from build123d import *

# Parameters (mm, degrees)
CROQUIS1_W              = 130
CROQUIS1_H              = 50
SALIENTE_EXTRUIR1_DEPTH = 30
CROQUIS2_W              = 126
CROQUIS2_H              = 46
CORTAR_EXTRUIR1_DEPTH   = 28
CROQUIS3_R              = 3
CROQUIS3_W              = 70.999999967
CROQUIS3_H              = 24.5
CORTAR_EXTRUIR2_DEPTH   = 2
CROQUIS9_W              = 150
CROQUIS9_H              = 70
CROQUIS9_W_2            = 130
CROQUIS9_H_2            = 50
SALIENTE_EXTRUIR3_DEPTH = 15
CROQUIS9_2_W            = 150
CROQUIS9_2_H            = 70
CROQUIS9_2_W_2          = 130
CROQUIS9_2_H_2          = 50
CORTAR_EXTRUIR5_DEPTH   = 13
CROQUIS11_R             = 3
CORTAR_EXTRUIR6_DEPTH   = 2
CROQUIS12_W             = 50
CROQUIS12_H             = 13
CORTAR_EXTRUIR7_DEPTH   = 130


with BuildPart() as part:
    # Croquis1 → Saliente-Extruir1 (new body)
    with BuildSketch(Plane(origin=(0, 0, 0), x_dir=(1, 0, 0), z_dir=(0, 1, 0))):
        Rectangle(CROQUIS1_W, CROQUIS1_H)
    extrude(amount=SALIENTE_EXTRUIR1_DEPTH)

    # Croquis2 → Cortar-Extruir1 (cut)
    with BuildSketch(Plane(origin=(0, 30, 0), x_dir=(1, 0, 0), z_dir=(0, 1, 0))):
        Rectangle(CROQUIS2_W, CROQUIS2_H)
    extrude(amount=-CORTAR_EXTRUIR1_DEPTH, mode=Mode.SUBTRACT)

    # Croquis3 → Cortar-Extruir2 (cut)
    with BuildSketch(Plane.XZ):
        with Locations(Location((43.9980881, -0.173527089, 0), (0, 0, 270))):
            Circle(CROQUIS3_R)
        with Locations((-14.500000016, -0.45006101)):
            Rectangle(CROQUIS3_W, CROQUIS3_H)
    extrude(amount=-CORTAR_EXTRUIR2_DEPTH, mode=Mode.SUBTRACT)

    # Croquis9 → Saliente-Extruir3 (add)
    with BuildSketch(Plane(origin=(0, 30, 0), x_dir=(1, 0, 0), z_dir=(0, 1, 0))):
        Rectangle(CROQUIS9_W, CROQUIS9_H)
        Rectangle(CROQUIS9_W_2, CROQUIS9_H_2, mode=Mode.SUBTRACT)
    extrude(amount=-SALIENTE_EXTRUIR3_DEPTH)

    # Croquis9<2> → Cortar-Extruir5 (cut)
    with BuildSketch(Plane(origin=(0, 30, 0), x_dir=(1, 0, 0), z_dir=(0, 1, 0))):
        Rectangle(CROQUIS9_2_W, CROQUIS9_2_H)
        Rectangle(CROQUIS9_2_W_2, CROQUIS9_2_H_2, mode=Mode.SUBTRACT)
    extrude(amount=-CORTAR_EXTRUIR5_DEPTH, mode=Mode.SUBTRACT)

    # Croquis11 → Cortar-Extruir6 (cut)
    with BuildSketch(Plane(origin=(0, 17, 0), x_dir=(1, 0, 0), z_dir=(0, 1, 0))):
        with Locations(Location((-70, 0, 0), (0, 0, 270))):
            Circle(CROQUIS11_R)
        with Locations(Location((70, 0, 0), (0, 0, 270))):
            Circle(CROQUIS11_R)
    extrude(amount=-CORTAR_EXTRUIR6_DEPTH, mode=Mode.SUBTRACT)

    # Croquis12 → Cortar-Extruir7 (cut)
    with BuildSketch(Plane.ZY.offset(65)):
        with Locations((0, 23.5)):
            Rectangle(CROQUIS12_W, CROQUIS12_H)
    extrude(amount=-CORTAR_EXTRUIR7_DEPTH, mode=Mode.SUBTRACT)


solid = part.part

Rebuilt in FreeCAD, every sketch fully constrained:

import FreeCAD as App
import Part
import Sketcher
from FreeCAD import Vector


def add_polygon(sketch, points):
    """Adds a closed chain of lines whose ends are joined by coincident constraints."""
    first, n = sketch.GeometryCount, len(points)
    for a, b in zip(points, points[1:] + points[:1]):
        sketch.addGeometry(Part.LineSegment(App.Vector(*a, 0), App.Vector(*b, 0)), False)
    for i in range(n):
        sketch.addConstraint(Sketcher.Constraint("Coincident", first + i, 2, first + (i + 1) % n, 1))

doc = App.newDocument("Part")
body = doc.addObject("PartDesign::Body", "Body")

sketch1 = body.newObject("Sketcher::SketchObject", "Sketch")
sketch1.AttachmentSupport = (doc.getObject("XZ_Plane"), [""])
sketch1.MapMode = "FlatFace"
add_polygon(sketch1, [(-65, -25), (-65, 25), (65, 25), (65, -25)])
sketch1.addConstraint([
    Sketcher.Constraint("Vertical", 0),
    Sketcher.Constraint("Horizontal", 1),
    Sketcher.Constraint("Vertical", 2),
    Sketcher.Constraint("Horizontal", 3),
    Sketcher.Constraint("Symmetric", 0, 2, 2, 2, -1, 1),
    Sketcher.Constraint("DistanceX", 1, 1, 1, 2, 130.0),
    Sketcher.Constraint("DistanceY", 0, 1, 0, 2, 50.0),
])
pad1 = body.newObject("PartDesign::Pad", "Pad")
pad1.Profile = sketch1
pad1.Length = 30
pad1.Reversed = True

sketch2 = body.newObject("Sketcher::SketchObject", "Sketch001")
sketch2.AttachmentSupport = (doc.getObject("XZ_Plane"), [""])
sketch2.MapMode = "FlatFace"
sketch2.AttachmentOffset = App.Placement(Vector(0, 0, -30), App.Rotation())
add_polygon(sketch2, [(-63, -23), (-63, 23), (63, 23), (63, -23)])
sketch2.addConstraint([
    Sketcher.Constraint("Vertical", 0),
    Sketcher.Constraint("Horizontal", 1),
    Sketcher.Constraint("Vertical", 2),
    Sketcher.Constraint("Horizontal", 3),
    Sketcher.Constraint("Symmetric", 0, 2, 2, 2, -1, 1),
    Sketcher.Constraint("DistanceX", 1, 1, 1, 2, 126.0),
    Sketcher.Constraint("DistanceY", 0, 1, 0, 2, 46.0),
])
pocket1 = body.newObject("PartDesign::Pocket", "Pocket")
pocket1.Profile = sketch2
pocket1.Length = 28
pocket1.Reversed = True

sketch3 = body.newObject("Sketcher::SketchObject", "Sketch002")
sketch3.AttachmentSupport = (doc.getObject("XZ_Plane"), [""])
sketch3.MapMode = "FlatFace"
sketch3.addGeometry(Part.Circle(Vector(44, -0.2, 0), Vector(0, 0, 1), 3), False)
add_polygon(sketch3, [(-50, 11.8), (-50, -12.7), (21, -12.7), (21, 11.8)])
sketch3.addConstraint([
    Sketcher.Constraint("Vertical", 1),
    Sketcher.Constraint("Horizontal", 2),
    Sketcher.Constraint("Vertical", 3),
    Sketcher.Constraint("Horizontal", 4),
    Sketcher.Constraint("Diameter", 0, 6.0),
    Sketcher.Constraint("DistanceX", 2, 1, 2, 2, 71.0),
    Sketcher.Constraint("DistanceY", 1, 2, 1, 1, 24.5),
    Sketcher.Constraint("DistanceX", 1, 2, -1, 1, 50.0),
    Sketcher.Constraint("DistanceX", -1, 1, 0, 3, 43.998088),
    Sketcher.Constraint("DistanceY", 1, 2, -1, 1, 12.700061),
    Sketcher.Constraint("DistanceY", 0, 3, -1, 1, 0.173527),
])
pocket2 = body.newObject("PartDesign::Pocket", "Pocket001")
pocket2.Profile = sketch3
pocket2.Length = 2

sketch4 = body.newObject("Sketcher::SketchObject", "Sketch003")
sketch4.AttachmentSupport = (doc.getObject("XZ_Plane"), [""])
sketch4.MapMode = "FlatFace"
sketch4.AttachmentOffset = App.Placement(Vector(0, 0, -30), App.Rotation())
add_polygon(sketch4, [(-75, -35), (-75, 35), (75, 35), (75, -35)])
add_polygon(sketch4, [(65, 25), (-65, 25), (-65, -25), (65, -25)])
sketch4.addConstraint([
    Sketcher.Constraint("Vertical", 0),
    Sketcher.Constraint("Horizontal", 1),
    Sketcher.Constraint("Vertical", 2),
    Sketcher.Constraint("Horizontal", 3),
    Sketcher.Constraint("Horizontal", 4),
    Sketcher.Constraint("Vertical", 5),
    Sketcher.Constraint("Horizontal", 6),
    Sketcher.Constraint("Vertical", 7),
    Sketcher.Constraint("Symmetric", 0, 2, 2, 2, -1, 1),
    Sketcher.Constraint("Symmetric", 4, 2, 6, 2, -1, 1),
    Sketcher.Constraint("DistanceX", 1, 1, 1, 2, 150.0),
    Sketcher.Constraint("DistanceX", 4, 2, 4, 1, 130.0),
    Sketcher.Constraint("DistanceY", 0, 1, 0, 2, 70.0),
    Sketcher.Constraint("DistanceY", 5, 2, 5, 1, 50.0),
])
pad2 = body.newObject("PartDesign::Pad", "Pad001")
pad2.Profile = sketch4
pad2.Length = 15

sketch5 = body.newObject("Sketcher::SketchObject", "Sketch004")
sketch5.AttachmentSupport = (doc.getObject("XZ_Plane"), [""])
sketch5.MapMode = "FlatFace"
sketch5.AttachmentOffset = App.Placement(Vector(0, 0, -30), App.Rotation())
add_polygon(sketch5, [(-75, -35), (-75, 35), (75, 35), (75, -35)])
add_polygon(sketch5, [(65, 25), (-65, 25), (-65, -25), (65, -25)])
sketch5.addConstraint([
    Sketcher.Constraint("Vertical", 0),
    Sketcher.Constraint("Horizontal", 1),
    Sketcher.Constraint("Vertical", 2),
    Sketcher.Constraint("Horizontal", 3),
    Sketcher.Constraint("Horizontal", 4),
    Sketcher.Constraint("Vertical", 5),
    Sketcher.Constraint("Horizontal", 6),
    Sketcher.Constraint("Vertical", 7),
    Sketcher.Constraint("Symmetric", 0, 2, 2, 2, -1, 1),
    Sketcher.Constraint("Symmetric", 4, 2, 6, 2, -1, 1),
    Sketcher.Constraint("DistanceX", 1, 1, 1, 2, 150.0),
    Sketcher.Constraint("DistanceX", 4, 2, 4, 1, 130.0),
    Sketcher.Constraint("DistanceY", 0, 1, 0, 2, 70.0),
    Sketcher.Constraint("DistanceY", 5, 2, 5, 1, 50.0),
])
pocket3 = body.newObject("PartDesign::Pocket", "Pocket002")
pocket3.Profile = sketch5
pocket3.Length = 13
pocket3.Reversed = True

sketch6 = body.newObject("Sketcher::SketchObject", "Sketch005")
sketch6.AttachmentSupport = (doc.getObject("XZ_Plane"), [""])
sketch6.MapMode = "FlatFace"
sketch6.AttachmentOffset = App.Placement(Vector(0, 0, -17), App.Rotation())
sketch6.addGeometry([
    Part.Circle(Vector(-70, 0, 0), Vector(0, 0, 1), 3),
    Part.Circle(Vector(70, 0, 0), Vector(0, 0, 1), 3),
], False)
sketch6.addConstraint([
    Sketcher.Constraint("Equal", 0, 1),
    Sketcher.Constraint("Symmetric", 0, 3, 1, 3, -1, 1),
    Sketcher.Constraint("PointOnObject", 0, 3, -1),
    Sketcher.Constraint("Diameter", 0, 6.0),
    Sketcher.Constraint("DistanceX", 0, 3, -1, 1, 70.0),
])
pocket4 = body.newObject("PartDesign::Pocket", "Pocket003")
pocket4.Profile = sketch6
pocket4.Length = 2
pocket4.Reversed = True

sketch7 = body.newObject("Sketcher::SketchObject", "Sketch006")
sketch7.AttachmentSupport = (doc.getObject("YZ_Plane"), [""])
sketch7.MapMode = "FlatFace"
sketch7.AttachmentOffset = App.Placement(Vector(0, 0, -65), App.Rotation())
add_polygon(sketch7, [(30, -25), (17, -25), (17, 25), (30, 25)])
sketch7.addConstraint([
    Sketcher.Constraint("Horizontal", 0),
    Sketcher.Constraint("Vertical", 1),
    Sketcher.Constraint("Horizontal", 2),
    Sketcher.Constraint("Vertical", 3),
    Sketcher.Constraint("DistanceX", 0, 2, 0, 1, 13.0),
    Sketcher.Constraint("DistanceY", 1, 1, 1, 2, 50.0),
    Sketcher.Constraint("DistanceX", -1, 1, 0, 2, 17.0),
    Sketcher.Constraint("DistanceY", 0, 2, -1, 1, 25.0),
])
pocket5 = body.newObject("PartDesign::Pocket", "Pocket004")
pocket5.Profile = sketch7
pocket5.Length = 130
pocket5.Reversed = True

doc.recompute()
